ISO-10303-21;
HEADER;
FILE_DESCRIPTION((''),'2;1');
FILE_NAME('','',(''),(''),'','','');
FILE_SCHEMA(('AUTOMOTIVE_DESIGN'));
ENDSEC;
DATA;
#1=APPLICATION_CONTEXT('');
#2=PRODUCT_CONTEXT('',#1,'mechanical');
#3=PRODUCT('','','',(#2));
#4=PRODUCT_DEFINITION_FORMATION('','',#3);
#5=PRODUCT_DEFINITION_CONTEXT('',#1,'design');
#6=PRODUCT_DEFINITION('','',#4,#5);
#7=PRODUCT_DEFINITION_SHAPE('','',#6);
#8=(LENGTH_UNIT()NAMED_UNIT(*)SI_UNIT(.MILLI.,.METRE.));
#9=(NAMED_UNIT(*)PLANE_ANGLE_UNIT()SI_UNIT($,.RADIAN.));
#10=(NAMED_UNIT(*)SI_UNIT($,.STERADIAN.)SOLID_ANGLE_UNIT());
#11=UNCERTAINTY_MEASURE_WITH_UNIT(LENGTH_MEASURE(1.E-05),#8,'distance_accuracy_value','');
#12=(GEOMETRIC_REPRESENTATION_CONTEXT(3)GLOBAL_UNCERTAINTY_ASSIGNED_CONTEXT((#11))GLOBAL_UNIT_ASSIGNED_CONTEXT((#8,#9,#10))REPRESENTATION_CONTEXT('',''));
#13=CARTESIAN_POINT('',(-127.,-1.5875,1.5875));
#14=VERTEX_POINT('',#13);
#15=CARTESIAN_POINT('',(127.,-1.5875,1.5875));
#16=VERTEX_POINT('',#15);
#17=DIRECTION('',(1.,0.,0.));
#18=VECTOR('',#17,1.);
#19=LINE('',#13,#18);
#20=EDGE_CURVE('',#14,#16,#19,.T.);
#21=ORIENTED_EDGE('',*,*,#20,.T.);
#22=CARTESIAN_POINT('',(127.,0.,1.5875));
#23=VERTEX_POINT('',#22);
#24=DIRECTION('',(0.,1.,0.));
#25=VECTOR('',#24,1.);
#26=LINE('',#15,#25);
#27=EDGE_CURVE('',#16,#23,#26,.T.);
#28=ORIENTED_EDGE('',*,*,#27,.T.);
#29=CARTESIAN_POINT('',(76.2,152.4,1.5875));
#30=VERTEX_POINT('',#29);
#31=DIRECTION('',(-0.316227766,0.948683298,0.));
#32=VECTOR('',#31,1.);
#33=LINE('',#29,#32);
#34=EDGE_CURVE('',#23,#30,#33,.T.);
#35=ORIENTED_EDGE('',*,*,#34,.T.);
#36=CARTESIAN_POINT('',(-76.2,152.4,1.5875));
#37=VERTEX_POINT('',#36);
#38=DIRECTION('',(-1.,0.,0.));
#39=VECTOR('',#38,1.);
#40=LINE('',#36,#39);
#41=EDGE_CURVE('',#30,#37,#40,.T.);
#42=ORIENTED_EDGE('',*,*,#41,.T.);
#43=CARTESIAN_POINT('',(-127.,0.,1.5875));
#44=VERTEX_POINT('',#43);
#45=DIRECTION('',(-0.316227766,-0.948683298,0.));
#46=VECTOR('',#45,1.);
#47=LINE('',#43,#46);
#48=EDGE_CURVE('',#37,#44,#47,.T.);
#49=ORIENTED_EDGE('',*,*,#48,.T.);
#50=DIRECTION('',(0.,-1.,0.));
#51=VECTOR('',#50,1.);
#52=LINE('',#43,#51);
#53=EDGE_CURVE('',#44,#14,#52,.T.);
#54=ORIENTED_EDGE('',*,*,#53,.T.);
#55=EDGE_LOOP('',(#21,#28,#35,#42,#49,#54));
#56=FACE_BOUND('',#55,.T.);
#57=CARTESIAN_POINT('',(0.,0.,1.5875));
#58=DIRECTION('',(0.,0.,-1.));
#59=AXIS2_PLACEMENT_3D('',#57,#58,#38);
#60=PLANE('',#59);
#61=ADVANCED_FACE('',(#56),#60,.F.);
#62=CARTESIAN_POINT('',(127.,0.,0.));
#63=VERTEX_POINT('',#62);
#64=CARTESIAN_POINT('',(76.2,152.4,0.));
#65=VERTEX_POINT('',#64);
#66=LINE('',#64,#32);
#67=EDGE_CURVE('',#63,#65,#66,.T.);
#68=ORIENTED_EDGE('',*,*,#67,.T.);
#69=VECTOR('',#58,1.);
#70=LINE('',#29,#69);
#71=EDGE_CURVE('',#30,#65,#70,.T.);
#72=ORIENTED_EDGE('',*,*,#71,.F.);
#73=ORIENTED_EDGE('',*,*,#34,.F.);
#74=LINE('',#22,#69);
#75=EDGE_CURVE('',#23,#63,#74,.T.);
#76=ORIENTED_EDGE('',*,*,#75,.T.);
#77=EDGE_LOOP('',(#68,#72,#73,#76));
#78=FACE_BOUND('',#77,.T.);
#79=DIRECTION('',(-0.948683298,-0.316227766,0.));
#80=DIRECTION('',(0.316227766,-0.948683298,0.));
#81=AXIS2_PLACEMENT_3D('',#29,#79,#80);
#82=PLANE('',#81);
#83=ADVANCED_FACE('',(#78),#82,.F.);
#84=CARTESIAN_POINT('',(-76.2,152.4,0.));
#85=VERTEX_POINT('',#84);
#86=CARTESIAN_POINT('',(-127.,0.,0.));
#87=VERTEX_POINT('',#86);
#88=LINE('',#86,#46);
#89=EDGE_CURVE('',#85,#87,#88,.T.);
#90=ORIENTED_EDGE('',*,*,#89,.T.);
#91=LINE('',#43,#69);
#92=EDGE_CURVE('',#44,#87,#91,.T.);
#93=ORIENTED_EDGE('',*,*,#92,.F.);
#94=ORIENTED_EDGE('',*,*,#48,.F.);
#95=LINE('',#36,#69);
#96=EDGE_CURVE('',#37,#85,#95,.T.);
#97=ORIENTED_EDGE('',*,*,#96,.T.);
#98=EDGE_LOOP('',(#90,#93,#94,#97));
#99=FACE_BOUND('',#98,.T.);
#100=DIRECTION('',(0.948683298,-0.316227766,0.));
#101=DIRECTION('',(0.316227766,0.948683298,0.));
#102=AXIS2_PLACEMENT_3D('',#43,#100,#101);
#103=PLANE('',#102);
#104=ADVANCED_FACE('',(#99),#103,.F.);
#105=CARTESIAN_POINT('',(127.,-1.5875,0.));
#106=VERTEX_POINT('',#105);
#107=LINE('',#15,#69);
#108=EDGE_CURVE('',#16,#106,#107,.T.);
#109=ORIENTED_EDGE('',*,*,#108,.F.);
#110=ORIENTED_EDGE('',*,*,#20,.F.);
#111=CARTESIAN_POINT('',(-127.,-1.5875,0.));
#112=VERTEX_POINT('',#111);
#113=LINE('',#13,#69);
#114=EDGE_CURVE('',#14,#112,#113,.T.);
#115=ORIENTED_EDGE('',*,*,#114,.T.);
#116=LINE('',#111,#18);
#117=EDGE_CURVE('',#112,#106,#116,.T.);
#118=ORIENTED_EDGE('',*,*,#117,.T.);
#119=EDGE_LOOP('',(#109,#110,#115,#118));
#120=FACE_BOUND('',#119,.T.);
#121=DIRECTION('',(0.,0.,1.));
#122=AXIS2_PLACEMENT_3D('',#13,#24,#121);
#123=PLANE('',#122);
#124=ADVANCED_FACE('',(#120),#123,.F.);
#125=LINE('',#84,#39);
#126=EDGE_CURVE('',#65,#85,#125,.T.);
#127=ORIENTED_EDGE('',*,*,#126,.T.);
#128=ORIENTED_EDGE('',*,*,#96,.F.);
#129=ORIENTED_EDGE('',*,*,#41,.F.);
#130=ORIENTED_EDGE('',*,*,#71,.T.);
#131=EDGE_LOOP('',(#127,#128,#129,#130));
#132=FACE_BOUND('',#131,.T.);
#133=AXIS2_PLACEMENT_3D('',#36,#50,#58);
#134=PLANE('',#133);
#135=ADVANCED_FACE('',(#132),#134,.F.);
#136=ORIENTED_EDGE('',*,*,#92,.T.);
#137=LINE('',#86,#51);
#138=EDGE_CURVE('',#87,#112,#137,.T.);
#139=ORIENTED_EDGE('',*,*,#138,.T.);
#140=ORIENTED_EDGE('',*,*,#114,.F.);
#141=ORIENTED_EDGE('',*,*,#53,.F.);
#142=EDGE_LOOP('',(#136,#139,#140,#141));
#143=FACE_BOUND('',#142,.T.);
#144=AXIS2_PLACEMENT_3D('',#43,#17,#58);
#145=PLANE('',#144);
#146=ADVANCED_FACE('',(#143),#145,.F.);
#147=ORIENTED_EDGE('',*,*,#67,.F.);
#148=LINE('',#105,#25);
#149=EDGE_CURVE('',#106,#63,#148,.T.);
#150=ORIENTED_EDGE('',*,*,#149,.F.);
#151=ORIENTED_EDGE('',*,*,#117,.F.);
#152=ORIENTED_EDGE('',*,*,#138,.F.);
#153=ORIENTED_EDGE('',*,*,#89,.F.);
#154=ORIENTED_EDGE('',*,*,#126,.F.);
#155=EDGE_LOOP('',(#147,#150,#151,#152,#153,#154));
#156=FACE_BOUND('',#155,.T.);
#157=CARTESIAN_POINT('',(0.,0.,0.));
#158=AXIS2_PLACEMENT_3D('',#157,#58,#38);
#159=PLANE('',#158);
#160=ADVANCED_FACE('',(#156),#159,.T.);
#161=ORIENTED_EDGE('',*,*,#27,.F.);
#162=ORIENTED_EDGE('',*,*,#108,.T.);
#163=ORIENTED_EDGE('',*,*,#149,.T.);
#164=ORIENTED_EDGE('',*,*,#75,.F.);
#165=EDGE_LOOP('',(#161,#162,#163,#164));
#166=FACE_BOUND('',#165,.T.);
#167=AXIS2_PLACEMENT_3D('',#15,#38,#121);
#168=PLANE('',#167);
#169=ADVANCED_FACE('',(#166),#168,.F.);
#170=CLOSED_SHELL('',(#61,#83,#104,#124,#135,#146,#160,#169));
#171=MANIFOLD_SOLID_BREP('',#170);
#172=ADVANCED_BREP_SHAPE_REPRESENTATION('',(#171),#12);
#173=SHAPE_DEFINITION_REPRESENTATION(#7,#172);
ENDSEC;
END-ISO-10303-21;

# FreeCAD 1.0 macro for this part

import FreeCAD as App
import Part
import Sketcher
from FreeCAD import Vector
Q = App.Units.Quantity

doc = App.newDocument("Part")
body = doc.addObject("PartDesign::Body", "Body")

sketch1 = body.newObject("Sketcher::SketchObject", "Sketch")
sketch1.AttachmentSupport = (doc.getObject("XY_Plane"), [""])
sketch1.MapMode = "FlatFace"
sketch1.addGeometry(Part.LineSegment(Vector(-76.2, 152.4, 0), Vector(-127, 0, 0)), False)
sketch1.addGeometry(Part.LineSegment(Vector(-127, 0, 0), Vector(-127, -1.6, 0)), False)
sketch1.addGeometry(Part.LineSegment(Vector(-127, -1.6, 0), Vector(127, -1.6, 0)), False)
sketch1.addGeometry(Part.LineSegment(Vector(127, -1.6, 0), Vector(127, 0, 0)), False)
sketch1.addGeometry(Part.LineSegment(Vector(127, 0, 0), Vector(76.2, 152.4, 0)), False)
sketch1.addGeometry(Part.LineSegment(Vector(76.2, 152.4, 0), Vector(-76.2, 152.4, 0)), False)
sketch1.addConstraint(Sketcher.Constraint("Coincident", 0, 2, 1, 1))
sketch1.addConstraint(Sketcher.Constraint("Coincident", 1, 2, 2, 1))
sketch1.addConstraint(Sketcher.Constraint("Coincident", 2, 2, 3, 1))
sketch1.addConstraint(Sketcher.Constraint("Coincident", 3, 2, 4, 1))
sketch1.addConstraint(Sketcher.Constraint("Coincident", 4, 2, 5, 1))
sketch1.addConstraint(Sketcher.Constraint("Coincident", 5, 2, 0, 1))
sketch1.addConstraint(Sketcher.Constraint("Vertical", 1))
sketch1.addConstraint(Sketcher.Constraint("Horizontal", 2))
sketch1.addConstraint(Sketcher.Constraint("Vertical", 3))
sketch1.addConstraint(Sketcher.Constraint("Horizontal", 5))
sketch1.addConstraint(Sketcher.Constraint("Symmetric", 0, 2, 3, 2, -1, 1))
sketch1.addConstraint(Sketcher.Constraint("PointOnObject", 0, 2, -1))
sketch1.addConstraint(Sketcher.Constraint("Equal", 0, 4))
sketch1.addConstraint(Sketcher.Constraint("DistanceX", 2, 1, 2, 2, Q("10 in")))
sketch1.addConstraint(Sketcher.Constraint("DistanceX", 5, 2, 5, 1, Q("6 in")))
sketch1.addConstraint(Sketcher.Constraint("DistanceY", -1, 1, 4, 2, Q("6 in")))
sketch1.addConstraint(Sketcher.Constraint("DistanceY", 1, 2, 1, 1, Q("0.0625 in")))
pad1 = body.newObject("PartDesign::Pad", "Pad")
pad1.Profile = sketch1
pad1.Length = Q("0.0625 in")

doc.recompute()
